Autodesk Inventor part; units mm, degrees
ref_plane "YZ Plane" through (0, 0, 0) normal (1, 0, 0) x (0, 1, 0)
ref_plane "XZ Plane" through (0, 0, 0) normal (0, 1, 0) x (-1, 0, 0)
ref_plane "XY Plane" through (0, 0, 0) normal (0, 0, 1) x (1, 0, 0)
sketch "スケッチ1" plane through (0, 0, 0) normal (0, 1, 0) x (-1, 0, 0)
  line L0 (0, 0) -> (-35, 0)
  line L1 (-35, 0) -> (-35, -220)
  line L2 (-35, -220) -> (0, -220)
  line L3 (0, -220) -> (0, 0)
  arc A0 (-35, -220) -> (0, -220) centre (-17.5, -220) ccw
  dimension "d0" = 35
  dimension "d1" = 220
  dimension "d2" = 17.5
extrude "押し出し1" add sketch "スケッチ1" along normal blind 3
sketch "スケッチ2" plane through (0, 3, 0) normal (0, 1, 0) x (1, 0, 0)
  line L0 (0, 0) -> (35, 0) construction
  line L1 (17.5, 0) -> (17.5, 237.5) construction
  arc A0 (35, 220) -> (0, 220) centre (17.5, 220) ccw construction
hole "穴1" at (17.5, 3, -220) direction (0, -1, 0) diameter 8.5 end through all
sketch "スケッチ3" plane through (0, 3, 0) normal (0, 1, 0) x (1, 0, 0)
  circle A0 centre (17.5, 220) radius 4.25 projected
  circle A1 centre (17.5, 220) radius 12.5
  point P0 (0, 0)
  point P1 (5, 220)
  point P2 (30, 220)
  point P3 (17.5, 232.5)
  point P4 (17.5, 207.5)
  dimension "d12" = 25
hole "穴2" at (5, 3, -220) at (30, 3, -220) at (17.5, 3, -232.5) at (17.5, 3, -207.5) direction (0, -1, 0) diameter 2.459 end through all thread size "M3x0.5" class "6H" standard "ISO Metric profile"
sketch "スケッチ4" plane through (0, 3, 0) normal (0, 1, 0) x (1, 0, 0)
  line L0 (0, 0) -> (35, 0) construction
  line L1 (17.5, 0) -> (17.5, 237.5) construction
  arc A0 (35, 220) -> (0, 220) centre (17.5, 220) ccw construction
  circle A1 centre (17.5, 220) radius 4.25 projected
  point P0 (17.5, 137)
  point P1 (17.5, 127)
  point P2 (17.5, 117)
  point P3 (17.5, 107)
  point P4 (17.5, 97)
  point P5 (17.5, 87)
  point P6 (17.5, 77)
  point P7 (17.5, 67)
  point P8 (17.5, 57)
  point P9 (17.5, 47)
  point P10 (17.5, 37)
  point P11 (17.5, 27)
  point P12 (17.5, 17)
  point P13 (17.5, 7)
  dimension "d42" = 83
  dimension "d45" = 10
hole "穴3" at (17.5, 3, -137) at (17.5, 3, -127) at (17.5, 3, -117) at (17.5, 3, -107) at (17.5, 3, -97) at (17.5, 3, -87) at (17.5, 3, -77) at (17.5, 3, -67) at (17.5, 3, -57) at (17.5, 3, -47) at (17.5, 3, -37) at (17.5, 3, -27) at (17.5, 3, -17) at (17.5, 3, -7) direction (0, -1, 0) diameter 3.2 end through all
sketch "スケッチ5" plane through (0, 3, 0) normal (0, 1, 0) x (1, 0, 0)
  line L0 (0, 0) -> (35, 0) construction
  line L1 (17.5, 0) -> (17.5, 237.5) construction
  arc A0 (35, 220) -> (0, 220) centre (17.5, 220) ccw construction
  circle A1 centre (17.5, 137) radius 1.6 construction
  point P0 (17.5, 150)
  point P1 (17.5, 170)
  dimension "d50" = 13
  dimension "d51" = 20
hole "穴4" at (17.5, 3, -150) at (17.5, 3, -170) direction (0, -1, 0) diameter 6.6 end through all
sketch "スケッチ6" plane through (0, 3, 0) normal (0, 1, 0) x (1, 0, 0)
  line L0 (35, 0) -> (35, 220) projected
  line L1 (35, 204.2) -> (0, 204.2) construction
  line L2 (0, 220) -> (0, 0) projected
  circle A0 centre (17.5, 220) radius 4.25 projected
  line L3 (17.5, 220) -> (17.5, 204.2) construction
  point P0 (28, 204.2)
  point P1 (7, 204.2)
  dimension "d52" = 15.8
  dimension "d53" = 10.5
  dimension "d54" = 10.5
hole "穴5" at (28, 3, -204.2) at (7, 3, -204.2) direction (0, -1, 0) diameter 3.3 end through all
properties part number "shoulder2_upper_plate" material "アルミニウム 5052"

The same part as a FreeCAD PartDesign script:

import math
import FreeCAD as App
import Part
import Sketcher

doc = App.newDocument("Part")
params = doc.addObject("Spreadsheet::Sheet", "Params")
for row, (alias, value) in enumerate([
    ("sketch1_radius", "17.5 mm"),
    ("sketch1_height", "220 mm"),
    ("pad1_length", "3 mm"),
    ("sketch2_diameter", "8.5 mm"),
    ("hole_diameter", "8.5 mm"),
    ("hole2_diameter", "2.459 mm"),
    ("sketch4_diameter", "3.2 mm"),
    ("hole3_diameter", "3.2 mm"),
    ("sketch5_diameter", "6.6 mm"),
    ("hole4_diameter", "6.6 mm"),
    ("sketch6_diameter", "3.3 mm"),
    ("hole5_diameter", "3.3 mm"),
], start=1):
    params.set(f"A{row}", alias)
    params.set(f"B{row}", "=" + value)
    params.setAlias(f"B{row}", alias)

body = doc.addObject("PartDesign::Body", "Body")

# Sketch on XZ plane
sketch1 = body.newObject("Sketcher::SketchObject", "Sketch")
sketch1.AttachmentSupport = (doc.getObject("XZ_Plane"), [""])
sketch1.MapMode = "FlatFace"
sketch1.addGeometry([
    Part.LineSegment(App.Vector(0, -220, 0), App.Vector(0, 0, 0)),
    Part.LineSegment(App.Vector(0, 0, 0), App.Vector(35, 0, 0)),
    Part.LineSegment(App.Vector(35, 0, 0), App.Vector(35, -220, 0)),
    Part.ArcOfCircle(Part.Circle(App.Vector(18, -220, 0), App.Vector(0, 0, 1), 18), math.radians(180), math.radians(360)),
], False)
sketch1.addConstraint([
    Sketcher.Constraint("Coincident", 0, 2, 1, 1),
    Sketcher.Constraint("Coincident", 1, 2, 2, 1),
    Sketcher.Constraint("Tangent", 2, 2, 3, 2),
    Sketcher.Constraint("Tangent", 3, 1, 0, 1),
    Sketcher.Constraint("Vertical", 0),
    Sketcher.Constraint("Horizontal", 1),
    Sketcher.Constraint("Vertical", 2),
    Sketcher.Constraint("Coincident", 0, 2, -1, 1),
    Sketcher.Constraint("Radius", 3, 17.5),
    Sketcher.Constraint("DistanceY", 0, 1, 0, 2, 220.0),
])
sketch1.setExpression("Constraints[8]", "Params.sketch1_radius")
sketch1.setExpression("Constraints[9]", "Params.sketch1_height")
pad1 = body.newObject("PartDesign::Pad", "Pad")
pad1.Profile = sketch1
pad1.setExpression("Length", "Params.pad1_length")
pad1.Reversed = True

# Sketch on XZ plane
sketch2 = body.newObject("Sketcher::SketchObject", "Sketch001")
sketch2.AttachmentSupport = (doc.getObject("XZ_Plane"), [""])
sketch2.MapMode = "FlatFace"
sketch2.AttachmentOffset = App.Placement(App.Vector(0, 0, -3), App.Rotation())
sketch2.addGeometry(Part.Circle(App.Vector(17.5, -220, 0), App.Vector(0, 0, 1), 4.2), False)
sketch2.addConstraint([
    Sketcher.Constraint("Diameter", 0, 8.5),
    Sketcher.Constraint("DistanceY", 0, 3, -1, 1, 220.0),
    Sketcher.Constraint("DistanceX", -1, 1, 0, 3, 17.5),
])
sketch2.setExpression("Constraints[0]", "Params.sketch2_diameter")
doc.recompute()
hole = body.newObject("PartDesign::Hole", "Hole")
hole.Profile = sketch2
hole.ThreadType = "None"
hole.setExpression("Diameter", "Params.hole_diameter")
hole.DepthType = "ThroughAll"
hole.Reversed = True

# Sketch on XZ plane
sketch3 = body.newObject("Sketcher::SketchObject", "Sketch002")
sketch3.AttachmentSupport = (doc.getObject("XZ_Plane"), [""])
sketch3.MapMode = "FlatFace"
sketch3.AttachmentOffset = App.Placement(App.Vector(0, 0, -3), App.Rotation())
sketch3.addGeometry([
    Part.Circle(App.Vector(5, -220, 0), App.Vector(0, 0, 1), 1.2),
    Part.Circle(App.Vector(30, -220, 0), App.Vector(0, 0, 1), 1.2),
    Part.Circle(App.Vector(17.5, -232.5, 0), App.Vector(0, 0, 1), 1.2),
    Part.Circle(App.Vector(17.5, -207.5, 0), App.Vector(0, 0, 1), 1.2),
], False)
sketch3.addConstraint([
    Sketcher.Constraint("Equal", 0, 1),
    Sketcher.Constraint("Equal", 1, 2),
    Sketcher.Constraint("Equal", 2, 3),
    Sketcher.Constraint("Horizontal", 0, 3, 1, 3),
    Sketcher.Constraint("Vertical", 2, 3, 3, 3),
    Sketcher.Constraint("Diameter", 0, 2.459),
    Sketcher.Constraint("DistanceX", -1, 1, 0, 3, 5.0),
    Sketcher.Constraint("DistanceY", 0, 3, -1, 1, 220.0),
    Sketcher.Constraint("DistanceX", -1, 1, 1, 3, 30.0),
    Sketcher.Constraint("DistanceY", 2, 3, 3, 3, 25.0),
    Sketcher.Constraint("DistanceX", -1, 1, 2, 3, 17.5),
    Sketcher.Constraint("DistanceY", 2, 3, -1, 1, 232.5),
])
doc.recompute()
hole2 = body.newObject("PartDesign::Hole", "Hole001")
hole2.Profile = sketch3
hole2.ThreadType = "None"
hole2.setExpression("Diameter", "Params.hole2_diameter")
hole2.DepthType = "ThroughAll"
hole2.Reversed = True

# Sketch on XZ plane
sketch4 = body.newObject("Sketcher::SketchObject", "Sketch003")
sketch4.AttachmentSupport = (doc.getObject("XZ_Plane"), [""])
sketch4.MapMode = "FlatFace"
sketch4.AttachmentOffset = App.Placement(App.Vector(0, 0, -3), App.Rotation())
sketch4.addGeometry([
    Part.Circle(App.Vector(17.5, -137, 0), App.Vector(0, 0, 1), 1.6),  # 0
    Part.Circle(App.Vector(17.5, -127, 0), App.Vector(0, 0, 1), 1.6),  # 1
    Part.Circle(App.Vector(17.5, -117, 0), App.Vector(0, 0, 1), 1.6),  # 2
    Part.Circle(App.Vector(17.5, -107, 0), App.Vector(0, 0, 1), 1.6),  # 3
    Part.Circle(App.Vector(17.5, -97, 0), App.Vector(0, 0, 1), 1.6),  # 4
    Part.Circle(App.Vector(17.5, -87, 0), App.Vector(0, 0, 1), 1.6),  # 5
    Part.Circle(App.Vector(17.5, -77, 0), App.Vector(0, 0, 1), 1.6),  # 6
    Part.Circle(App.Vector(17.5, -67, 0), App.Vector(0, 0, 1), 1.6),  # 7
    Part.Circle(App.Vector(17.5, -57, 0), App.Vector(0, 0, 1), 1.6),  # 8
    Part.Circle(App.Vector(17.5, -47, 0), App.Vector(0, 0, 1), 1.6),  # 9
    Part.Circle(App.Vector(17.5, -37, 0), App.Vector(0, 0, 1), 1.6),  # 10
    Part.Circle(App.Vector(17.5, -27, 0), App.Vector(0, 0, 1), 1.6),  # 11
    Part.Circle(App.Vector(17.5, -17, 0), App.Vector(0, 0, 1), 1.6),  # 12
    Part.Circle(App.Vector(17.5, -7, 0), App.Vector(0, 0, 1), 1.6),  # 13
], False)
sketch4.addConstraint([
    Sketcher.Constraint("Equal", 0, 1),
    Sketcher.Constraint("Equal", 1, 2),
    Sketcher.Constraint("Equal", 2, 3),
    Sketcher.Constraint("Equal", 3, 4),
    Sketcher.Constraint("Equal", 4, 5),
    Sketcher.Constraint("Equal", 5, 6),
    Sketcher.Constraint("Equal", 6, 7),
    Sketcher.Constraint("Equal", 7, 8),
    Sketcher.Constraint("Equal", 8, 9),
    Sketcher.Constraint("Equal", 9, 10),
    Sketcher.Constraint("Equal", 10, 11),
    Sketcher.Constraint("Equal", 11, 12),
    Sketcher.Constraint("Equal", 12, 13),
    Sketcher.Constraint("Vertical", 0, 3, 1, 3),
    Sketcher.Constraint("Vertical", 1, 3, 2, 3),
    Sketcher.Constraint("Vertical", 2, 3, 3, 3),
    Sketcher.Constraint("Vertical", 3, 3, 4, 3),
    Sketcher.Constraint("Vertical", 4, 3, 5, 3),
    Sketcher.Constraint("Vertical", 5, 3, 6, 3),
    Sketcher.Constraint("Vertical", 6, 3, 7, 3),
    Sketcher.Constraint("Vertical", 7, 3, 8, 3),
    Sketcher.Constraint("Vertical", 8, 3, 9, 3),
    Sketcher.Constraint("Vertical", 9, 3, 10, 3),
    Sketcher.Constraint("Vertical", 10, 3, 11, 3),
    Sketcher.Constraint("Vertical", 11, 3, 12, 3),
    Sketcher.Constraint("Vertical", 12, 3, 13, 3),
    Sketcher.Constraint("Diameter", 0, 3.2),
    Sketcher.Constraint("DistanceY", 0, 3, -1, 1, 137.0),
    Sketcher.Constraint("DistanceY", 1, 3, -1, 1, 127.0),
    Sketcher.Constraint("DistanceY", 2, 3, -1, 1, 117.0),
    Sketcher.Constraint("DistanceY", 3, 3, -1, 1, 107.0),
    Sketcher.Constraint("DistanceY", 4, 3, -1, 1, 97.0),
    Sketcher.Constraint("DistanceY", 5, 3, -1, 1, 87.0),
    Sketcher.Constraint("DistanceY", 6, 3, -1, 1, 77.0),
    Sketcher.Constraint("DistanceY", 7, 3, -1, 1, 67.0),
    Sketcher.Constraint("DistanceY", 8, 3, -1, 1, 57.0),
    Sketcher.Constraint("DistanceY", 9, 3, -1, 1, 47.0),
    Sketcher.Constraint("DistanceY", 10, 3, -1, 1, 37.0),
    Sketcher.Constraint("DistanceY", 11, 3, -1, 1, 27.0),
    Sketcher.Constraint("DistanceY", 12, 3, -1, 1, 17.0),
    Sketcher.Constraint("DistanceY", 13, 3, -1, 1, 7.0),
    Sketcher.Constraint("DistanceX", -1, 1, 0, 3, 17.5),
])
sketch4.setExpression("Constraints[26]", "Params.sketch4_diameter")
doc.recompute()
hole3 = body.newObject("PartDesign::Hole", "Hole002")
hole3.Profile = sketch4
hole3.ThreadType = "None"
hole3.setExpression("Diameter", "Params.hole3_diameter")
hole3.DepthType = "ThroughAll"
hole3.Reversed = True

# Sketch on XZ plane
sketch5 = body.newObject("Sketcher::SketchObject", "Sketch004")
sketch5.AttachmentSupport = (doc.getObject("XZ_Plane"), [""])
sketch5.MapMode = "FlatFace"
sketch5.AttachmentOffset = App.Placement(App.Vector(0, 0, -3), App.Rotation())
sketch5.addGeometry([
    Part.Circle(App.Vector(17.5, -150, 0), App.Vector(0, 0, 1), 3.3),
    Part.Circle(App.Vector(17.5, -170, 0), App.Vector(0, 0, 1), 3.3),
], False)
sketch5.addConstraint([
    Sketcher.Constraint("Equal", 0, 1),
    Sketcher.Constraint("Vertical", 0, 3, 1, 3),
    Sketcher.Constraint("Diameter", 0, 6.6),
    Sketcher.Constraint("DistanceY", 0, 3, -1, 1, 150.0),
    Sketcher.Constraint("DistanceY", 1, 3, -1, 1, 170.0),
    Sketcher.Constraint("DistanceX", -1, 1, 0, 3, 17.5),
])
sketch5.setExpression("Constraints[2]", "Params.sketch5_diameter")
doc.recompute()
hole4 = body.newObject("PartDesign::Hole", "Hole003")
hole4.Profile = sketch5
hole4.ThreadType = "None"
hole4.setExpression("Diameter", "Params.hole4_diameter")
hole4.DepthType = "ThroughAll"
hole4.Reversed = True

# Sketch on XZ plane
sketch6 = body.newObject("Sketcher::SketchObject", "Sketch005")
sketch6.AttachmentSupport = (doc.getObject("XZ_Plane"), [""])
sketch6.MapMode = "FlatFace"
sketch6.AttachmentOffset = App.Placement(App.Vector(0, 0, -3), App.Rotation())
sketch6.addGeometry([
    Part.Circle(App.Vector(28, -204.2, 0), App.Vector(0, 0, 1), 1.6),
    Part.Circle(App.Vector(7, -204.2, 0), App.Vector(0, 0, 1), 1.6),
], False)
sketch6.addConstraint([
    Sketcher.Constraint("Equal", 0, 1),
    Sketcher.Constraint("Horizontal", 0, 3, 1, 3),
    Sketcher.Constraint("Diameter", 0, 3.3),
    Sketcher.Constraint("DistanceX", -1, 1, 0, 3, 28.0),
    Sketcher.Constraint("DistanceX", -1, 1, 1, 3, 7.0),
    Sketcher.Constraint("DistanceY", 0, 3, -1, 1, 204.2),
])
sketch6.setExpression("Constraints[2]", "Params.sketch6_diameter")
doc.recompute()
hole5 = body.newObject("PartDesign::Hole", "Hole004")
hole5.Profile = sketch6
hole5.ThreadType = "None"
hole5.setExpression("Diameter", "Params.hole5_diameter")
hole5.DepthType = "ThroughAll"
hole5.Reversed = True

doc.recompute()
